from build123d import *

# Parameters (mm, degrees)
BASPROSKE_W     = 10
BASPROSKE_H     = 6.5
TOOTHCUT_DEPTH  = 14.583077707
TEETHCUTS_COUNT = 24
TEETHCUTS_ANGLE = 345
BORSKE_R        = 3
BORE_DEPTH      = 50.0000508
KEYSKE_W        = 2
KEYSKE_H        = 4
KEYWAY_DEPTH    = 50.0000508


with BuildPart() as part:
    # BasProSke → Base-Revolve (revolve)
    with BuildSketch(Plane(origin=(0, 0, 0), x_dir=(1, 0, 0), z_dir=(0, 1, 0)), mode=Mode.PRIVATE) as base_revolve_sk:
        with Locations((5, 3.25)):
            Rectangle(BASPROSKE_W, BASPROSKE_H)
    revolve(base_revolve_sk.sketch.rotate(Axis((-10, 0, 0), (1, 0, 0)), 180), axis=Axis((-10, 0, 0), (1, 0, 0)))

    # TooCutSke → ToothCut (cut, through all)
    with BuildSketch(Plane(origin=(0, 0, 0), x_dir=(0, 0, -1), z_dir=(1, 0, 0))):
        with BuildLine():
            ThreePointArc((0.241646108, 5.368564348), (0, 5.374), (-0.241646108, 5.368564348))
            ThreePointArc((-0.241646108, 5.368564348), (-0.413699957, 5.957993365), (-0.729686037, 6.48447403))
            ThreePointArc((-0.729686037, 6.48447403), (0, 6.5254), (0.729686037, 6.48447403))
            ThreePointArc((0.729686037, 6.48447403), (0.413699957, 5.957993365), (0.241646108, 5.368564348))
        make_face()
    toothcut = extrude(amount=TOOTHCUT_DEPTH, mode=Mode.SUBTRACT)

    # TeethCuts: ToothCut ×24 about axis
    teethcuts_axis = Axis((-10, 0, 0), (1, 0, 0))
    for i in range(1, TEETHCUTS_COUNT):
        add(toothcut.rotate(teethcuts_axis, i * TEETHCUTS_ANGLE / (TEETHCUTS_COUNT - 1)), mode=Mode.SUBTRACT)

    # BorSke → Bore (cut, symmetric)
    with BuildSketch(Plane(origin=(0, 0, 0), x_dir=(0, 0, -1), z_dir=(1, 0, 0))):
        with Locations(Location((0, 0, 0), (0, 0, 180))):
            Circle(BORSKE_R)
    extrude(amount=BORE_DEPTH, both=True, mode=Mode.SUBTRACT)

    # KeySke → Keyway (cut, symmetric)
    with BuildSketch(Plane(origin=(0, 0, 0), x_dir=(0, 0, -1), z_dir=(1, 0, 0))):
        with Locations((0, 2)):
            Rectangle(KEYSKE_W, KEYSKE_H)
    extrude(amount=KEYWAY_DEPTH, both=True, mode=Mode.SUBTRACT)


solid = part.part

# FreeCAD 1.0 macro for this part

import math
import FreeCAD as App
import Part
import Sketcher

V = App.Vector
Q = App.Units.Quantity

doc = App.newDocument("Part")
body = doc.addObject("PartDesign::Body", "Body")

# Sketch on XZ plane
sketch1 = body.newObject("Sketcher::SketchObject", "Sketch")
sketch1.AttachmentSupport = (doc.getObject("XZ_Plane"), [""])
sketch1.MapMode = "FlatFace"
sketch1.addGeometry(Part.LineSegment(V(0, -6, 0), V(0, 0, 0)), False)
sketch1.addGeometry(Part.LineSegment(V(0, 0, 0), V(10, 0, 0)), False)
sketch1.addGeometry(Part.LineSegment(V(10, 0, 0), V(10, -6, 0)), False)
sketch1.addGeometry(Part.LineSegment(V(10, -6, 0), V(0, -6, 0)), False)
sketch1.addConstraint(Sketcher.Constraint("Coincident", 0, 2, 1, 1))
sketch1.addConstraint(Sketcher.Constraint("Coincident", 1, 2, 2, 1))
sketch1.addConstraint(Sketcher.Constraint("Coincident", 2, 2, 3, 1))
sketch1.addConstraint(Sketcher.Constraint("Coincident", 3, 2, 0, 1))
sketch1.addConstraint(Sketcher.Constraint("Vertical", 0))
sketch1.addConstraint(Sketcher.Constraint("Horizontal", 1))
sketch1.addConstraint(Sketcher.Constraint("Vertical", 2))
sketch1.addConstraint(Sketcher.Constraint("Horizontal", 3))
sketch1.addConstraint(Sketcher.Constraint("Coincident", 0, 2, -1, 1))
sketch1.addConstraint(Sketcher.Constraint("DistanceX", 1, 1, 1, 2, Q("10 mm")))
sketch1.addConstraint(Sketcher.Constraint("DistanceY", 0, 1, 0, 2, Q("6.5 mm")))
revolution = body.newObject("PartDesign::Revolution", "Revolution")
revolution.Profile = sketch1
revolution.ReferenceAxis = (sketch1, ["H_Axis"])
revolution.Angle = 360

# Sketch on YZ plane
sketch2 = body.newObject("Sketcher::SketchObject", "Sketch001")
sketch2.AttachmentSupport = (doc.getObject("YZ_Plane"), [""])
sketch2.MapMode = "FlatFace"
sketch2.addGeometry(Part.ArcOfCircle(Part.Circle(V(0, 0, 0), V(0, 0, 1), 5.37), math.radians(-2.58), math.radians(2.58)), False)
sketch2.addGeometry(Part.ArcOfCircle(Part.Circle(V(5, -2.61, 0), V(0, 0, 1), 2.4), math.radians(52), math.radians(81)), False)
sketch2.addGeometry(Part.ArcOfCircle(Part.Circle(V(0, 0, 0), V(0, 0, 1), 6.53), math.radians(-6.42), math.radians(6.42)), False)
sketch2.addGeometry(Part.ArcOfCircle(Part.Circle(V(5, 2.61, 0), V(0, 0, 1), 2.4), math.radians(-81), math.radians(-52)), False)
sketch2.addConstraint(Sketcher.Constraint("Coincident", 0, 1, 1, 2))
sketch2.addConstraint(Sketcher.Constraint("Coincident", 1, 1, 2, 1))
sketch2.addConstraint(Sketcher.Constraint("Coincident", 2, 2, 3, 2))
sketch2.addConstraint(Sketcher.Constraint("Coincident", 3, 1, 0, 2))
sketch2.addConstraint(Sketcher.Constraint("Coincident", 0, 3, -1, 1))
sketch2.addConstraint(Sketcher.Constraint("Coincident", 2, 3, -1, 1))
sketch2.addConstraint(Sketcher.Constraint("Equal", 1, 3))
sketch2.addConstraint(Sketcher.Constraint("Symmetric", 1, 3, 3, 3, -1))
sketch2.addConstraint(Sketcher.Constraint("Radius", 1, Q("2.4 mm")))
sketch2.addConstraint(Sketcher.Constraint("Radius", 0, Q("5.374 mm")))
sketch2.addConstraint(Sketcher.Constraint("Radius", 2, Q("6.5254 mm")))
sketch2.addConstraint(Sketcher.Constraint("DistanceY", 1, 3, -1, 1, Q("2.612601 mm")))
sketch2.addConstraint(Sketcher.Constraint("DistanceX", -1, 1, 1, 3, Q("4.99631 mm")))
pocket1 = body.newObject("PartDesign::Pocket", "Pocket")
pocket1.Profile = sketch2
pocket1.Type = "ThroughAll"
pocket1.Reversed = True
doc.recompute()

polarpattern = body.newObject("PartDesign::PolarPattern", "PolarPattern")
polarpattern.Originals = [pocket1]
polarpattern.Axis = (doc.getObject("X_Axis"), [""])
polarpattern.Angle = 360
polarpattern.Occurrences = 24
body.Tip = polarpattern

# Sketch on YZ plane
sketch3 = body.newObject("Sketcher::SketchObject", "Sketch002")
sketch3.AttachmentSupport = (doc.getObject("YZ_Plane"), [""])
sketch3.MapMode = "FlatFace"
sketch3.addGeometry(Part.Circle(V(0, 0, 0), V(0, 0, 1), 3), False)
sketch3.addConstraint(Sketcher.Constraint("Coincident", 0, 3, -1, 1))
sketch3.addConstraint(Sketcher.Constraint("Diameter", 0, Q("6 mm")))
pocket2 = body.newObject("PartDesign::Pocket", "Pocket001")
pocket2.Profile = sketch3
pocket2.Length = 100.000102
pocket2.Midplane = True

# Sketch on YZ plane
sketch4 = body.newObject("Sketcher::SketchObject", "Sketch003")
sketch4.AttachmentSupport = (doc.getObject("YZ_Plane"), [""])
sketch4.MapMode = "FlatFace"
sketch4.addGeometry(Part.LineSegment(V(4, 1, 0), V(0, 1, 0)), False)
sketch4.addGeometry(Part.LineSegment(V(0, 1, 0), V(0, -1, 0)), False)
sketch4.addGeometry(Part.LineSegment(V(0, -1, 0), V(4, -1, 0)), False)
sketch4.addGeometry(Part.LineSegment(V(4, -1, 0), V(4, 1, 0)), False)
sketch4.addConstraint(Sketcher.Constraint("Coincident", 0, 2, 1, 1))
sketch4.addConstraint(Sketcher.Constraint("Coincident", 1, 2, 2, 1))
sketch4.addConstraint(Sketcher.Constraint("Coincident", 2, 2, 3, 1))
sketch4.addConstraint(Sketcher.Constraint("Coincident", 3, 2, 0, 1))
sketch4.addConstraint(Sketcher.Constraint("Horizontal", 0))
sketch4.addConstraint(Sketcher.Constraint("Vertical", 1))
sketch4.addConstraint(Sketcher.Constraint("Horizontal", 2))
sketch4.addConstraint(Sketcher.Constraint("Vertical", 3))
sketch4.addConstraint(Sketcher.Constraint("Symmetric", 0, 2, 1, 2, -1, 1))
sketch4.addConstraint(Sketcher.Constraint("DistanceX", 0, 2, 0, 1, Q("4 mm")))
sketch4.addConstraint(Sketcher.Constraint("DistanceY", 1, 2, 1, 1, Q("2 mm")))
pocket3 = body.newObject("PartDesign::Pocket", "Pocket002")
pocket3.Profile = sketch4
pocket3.Length = 100.000102
pocket3.Midplane = True

doc.recompute()
